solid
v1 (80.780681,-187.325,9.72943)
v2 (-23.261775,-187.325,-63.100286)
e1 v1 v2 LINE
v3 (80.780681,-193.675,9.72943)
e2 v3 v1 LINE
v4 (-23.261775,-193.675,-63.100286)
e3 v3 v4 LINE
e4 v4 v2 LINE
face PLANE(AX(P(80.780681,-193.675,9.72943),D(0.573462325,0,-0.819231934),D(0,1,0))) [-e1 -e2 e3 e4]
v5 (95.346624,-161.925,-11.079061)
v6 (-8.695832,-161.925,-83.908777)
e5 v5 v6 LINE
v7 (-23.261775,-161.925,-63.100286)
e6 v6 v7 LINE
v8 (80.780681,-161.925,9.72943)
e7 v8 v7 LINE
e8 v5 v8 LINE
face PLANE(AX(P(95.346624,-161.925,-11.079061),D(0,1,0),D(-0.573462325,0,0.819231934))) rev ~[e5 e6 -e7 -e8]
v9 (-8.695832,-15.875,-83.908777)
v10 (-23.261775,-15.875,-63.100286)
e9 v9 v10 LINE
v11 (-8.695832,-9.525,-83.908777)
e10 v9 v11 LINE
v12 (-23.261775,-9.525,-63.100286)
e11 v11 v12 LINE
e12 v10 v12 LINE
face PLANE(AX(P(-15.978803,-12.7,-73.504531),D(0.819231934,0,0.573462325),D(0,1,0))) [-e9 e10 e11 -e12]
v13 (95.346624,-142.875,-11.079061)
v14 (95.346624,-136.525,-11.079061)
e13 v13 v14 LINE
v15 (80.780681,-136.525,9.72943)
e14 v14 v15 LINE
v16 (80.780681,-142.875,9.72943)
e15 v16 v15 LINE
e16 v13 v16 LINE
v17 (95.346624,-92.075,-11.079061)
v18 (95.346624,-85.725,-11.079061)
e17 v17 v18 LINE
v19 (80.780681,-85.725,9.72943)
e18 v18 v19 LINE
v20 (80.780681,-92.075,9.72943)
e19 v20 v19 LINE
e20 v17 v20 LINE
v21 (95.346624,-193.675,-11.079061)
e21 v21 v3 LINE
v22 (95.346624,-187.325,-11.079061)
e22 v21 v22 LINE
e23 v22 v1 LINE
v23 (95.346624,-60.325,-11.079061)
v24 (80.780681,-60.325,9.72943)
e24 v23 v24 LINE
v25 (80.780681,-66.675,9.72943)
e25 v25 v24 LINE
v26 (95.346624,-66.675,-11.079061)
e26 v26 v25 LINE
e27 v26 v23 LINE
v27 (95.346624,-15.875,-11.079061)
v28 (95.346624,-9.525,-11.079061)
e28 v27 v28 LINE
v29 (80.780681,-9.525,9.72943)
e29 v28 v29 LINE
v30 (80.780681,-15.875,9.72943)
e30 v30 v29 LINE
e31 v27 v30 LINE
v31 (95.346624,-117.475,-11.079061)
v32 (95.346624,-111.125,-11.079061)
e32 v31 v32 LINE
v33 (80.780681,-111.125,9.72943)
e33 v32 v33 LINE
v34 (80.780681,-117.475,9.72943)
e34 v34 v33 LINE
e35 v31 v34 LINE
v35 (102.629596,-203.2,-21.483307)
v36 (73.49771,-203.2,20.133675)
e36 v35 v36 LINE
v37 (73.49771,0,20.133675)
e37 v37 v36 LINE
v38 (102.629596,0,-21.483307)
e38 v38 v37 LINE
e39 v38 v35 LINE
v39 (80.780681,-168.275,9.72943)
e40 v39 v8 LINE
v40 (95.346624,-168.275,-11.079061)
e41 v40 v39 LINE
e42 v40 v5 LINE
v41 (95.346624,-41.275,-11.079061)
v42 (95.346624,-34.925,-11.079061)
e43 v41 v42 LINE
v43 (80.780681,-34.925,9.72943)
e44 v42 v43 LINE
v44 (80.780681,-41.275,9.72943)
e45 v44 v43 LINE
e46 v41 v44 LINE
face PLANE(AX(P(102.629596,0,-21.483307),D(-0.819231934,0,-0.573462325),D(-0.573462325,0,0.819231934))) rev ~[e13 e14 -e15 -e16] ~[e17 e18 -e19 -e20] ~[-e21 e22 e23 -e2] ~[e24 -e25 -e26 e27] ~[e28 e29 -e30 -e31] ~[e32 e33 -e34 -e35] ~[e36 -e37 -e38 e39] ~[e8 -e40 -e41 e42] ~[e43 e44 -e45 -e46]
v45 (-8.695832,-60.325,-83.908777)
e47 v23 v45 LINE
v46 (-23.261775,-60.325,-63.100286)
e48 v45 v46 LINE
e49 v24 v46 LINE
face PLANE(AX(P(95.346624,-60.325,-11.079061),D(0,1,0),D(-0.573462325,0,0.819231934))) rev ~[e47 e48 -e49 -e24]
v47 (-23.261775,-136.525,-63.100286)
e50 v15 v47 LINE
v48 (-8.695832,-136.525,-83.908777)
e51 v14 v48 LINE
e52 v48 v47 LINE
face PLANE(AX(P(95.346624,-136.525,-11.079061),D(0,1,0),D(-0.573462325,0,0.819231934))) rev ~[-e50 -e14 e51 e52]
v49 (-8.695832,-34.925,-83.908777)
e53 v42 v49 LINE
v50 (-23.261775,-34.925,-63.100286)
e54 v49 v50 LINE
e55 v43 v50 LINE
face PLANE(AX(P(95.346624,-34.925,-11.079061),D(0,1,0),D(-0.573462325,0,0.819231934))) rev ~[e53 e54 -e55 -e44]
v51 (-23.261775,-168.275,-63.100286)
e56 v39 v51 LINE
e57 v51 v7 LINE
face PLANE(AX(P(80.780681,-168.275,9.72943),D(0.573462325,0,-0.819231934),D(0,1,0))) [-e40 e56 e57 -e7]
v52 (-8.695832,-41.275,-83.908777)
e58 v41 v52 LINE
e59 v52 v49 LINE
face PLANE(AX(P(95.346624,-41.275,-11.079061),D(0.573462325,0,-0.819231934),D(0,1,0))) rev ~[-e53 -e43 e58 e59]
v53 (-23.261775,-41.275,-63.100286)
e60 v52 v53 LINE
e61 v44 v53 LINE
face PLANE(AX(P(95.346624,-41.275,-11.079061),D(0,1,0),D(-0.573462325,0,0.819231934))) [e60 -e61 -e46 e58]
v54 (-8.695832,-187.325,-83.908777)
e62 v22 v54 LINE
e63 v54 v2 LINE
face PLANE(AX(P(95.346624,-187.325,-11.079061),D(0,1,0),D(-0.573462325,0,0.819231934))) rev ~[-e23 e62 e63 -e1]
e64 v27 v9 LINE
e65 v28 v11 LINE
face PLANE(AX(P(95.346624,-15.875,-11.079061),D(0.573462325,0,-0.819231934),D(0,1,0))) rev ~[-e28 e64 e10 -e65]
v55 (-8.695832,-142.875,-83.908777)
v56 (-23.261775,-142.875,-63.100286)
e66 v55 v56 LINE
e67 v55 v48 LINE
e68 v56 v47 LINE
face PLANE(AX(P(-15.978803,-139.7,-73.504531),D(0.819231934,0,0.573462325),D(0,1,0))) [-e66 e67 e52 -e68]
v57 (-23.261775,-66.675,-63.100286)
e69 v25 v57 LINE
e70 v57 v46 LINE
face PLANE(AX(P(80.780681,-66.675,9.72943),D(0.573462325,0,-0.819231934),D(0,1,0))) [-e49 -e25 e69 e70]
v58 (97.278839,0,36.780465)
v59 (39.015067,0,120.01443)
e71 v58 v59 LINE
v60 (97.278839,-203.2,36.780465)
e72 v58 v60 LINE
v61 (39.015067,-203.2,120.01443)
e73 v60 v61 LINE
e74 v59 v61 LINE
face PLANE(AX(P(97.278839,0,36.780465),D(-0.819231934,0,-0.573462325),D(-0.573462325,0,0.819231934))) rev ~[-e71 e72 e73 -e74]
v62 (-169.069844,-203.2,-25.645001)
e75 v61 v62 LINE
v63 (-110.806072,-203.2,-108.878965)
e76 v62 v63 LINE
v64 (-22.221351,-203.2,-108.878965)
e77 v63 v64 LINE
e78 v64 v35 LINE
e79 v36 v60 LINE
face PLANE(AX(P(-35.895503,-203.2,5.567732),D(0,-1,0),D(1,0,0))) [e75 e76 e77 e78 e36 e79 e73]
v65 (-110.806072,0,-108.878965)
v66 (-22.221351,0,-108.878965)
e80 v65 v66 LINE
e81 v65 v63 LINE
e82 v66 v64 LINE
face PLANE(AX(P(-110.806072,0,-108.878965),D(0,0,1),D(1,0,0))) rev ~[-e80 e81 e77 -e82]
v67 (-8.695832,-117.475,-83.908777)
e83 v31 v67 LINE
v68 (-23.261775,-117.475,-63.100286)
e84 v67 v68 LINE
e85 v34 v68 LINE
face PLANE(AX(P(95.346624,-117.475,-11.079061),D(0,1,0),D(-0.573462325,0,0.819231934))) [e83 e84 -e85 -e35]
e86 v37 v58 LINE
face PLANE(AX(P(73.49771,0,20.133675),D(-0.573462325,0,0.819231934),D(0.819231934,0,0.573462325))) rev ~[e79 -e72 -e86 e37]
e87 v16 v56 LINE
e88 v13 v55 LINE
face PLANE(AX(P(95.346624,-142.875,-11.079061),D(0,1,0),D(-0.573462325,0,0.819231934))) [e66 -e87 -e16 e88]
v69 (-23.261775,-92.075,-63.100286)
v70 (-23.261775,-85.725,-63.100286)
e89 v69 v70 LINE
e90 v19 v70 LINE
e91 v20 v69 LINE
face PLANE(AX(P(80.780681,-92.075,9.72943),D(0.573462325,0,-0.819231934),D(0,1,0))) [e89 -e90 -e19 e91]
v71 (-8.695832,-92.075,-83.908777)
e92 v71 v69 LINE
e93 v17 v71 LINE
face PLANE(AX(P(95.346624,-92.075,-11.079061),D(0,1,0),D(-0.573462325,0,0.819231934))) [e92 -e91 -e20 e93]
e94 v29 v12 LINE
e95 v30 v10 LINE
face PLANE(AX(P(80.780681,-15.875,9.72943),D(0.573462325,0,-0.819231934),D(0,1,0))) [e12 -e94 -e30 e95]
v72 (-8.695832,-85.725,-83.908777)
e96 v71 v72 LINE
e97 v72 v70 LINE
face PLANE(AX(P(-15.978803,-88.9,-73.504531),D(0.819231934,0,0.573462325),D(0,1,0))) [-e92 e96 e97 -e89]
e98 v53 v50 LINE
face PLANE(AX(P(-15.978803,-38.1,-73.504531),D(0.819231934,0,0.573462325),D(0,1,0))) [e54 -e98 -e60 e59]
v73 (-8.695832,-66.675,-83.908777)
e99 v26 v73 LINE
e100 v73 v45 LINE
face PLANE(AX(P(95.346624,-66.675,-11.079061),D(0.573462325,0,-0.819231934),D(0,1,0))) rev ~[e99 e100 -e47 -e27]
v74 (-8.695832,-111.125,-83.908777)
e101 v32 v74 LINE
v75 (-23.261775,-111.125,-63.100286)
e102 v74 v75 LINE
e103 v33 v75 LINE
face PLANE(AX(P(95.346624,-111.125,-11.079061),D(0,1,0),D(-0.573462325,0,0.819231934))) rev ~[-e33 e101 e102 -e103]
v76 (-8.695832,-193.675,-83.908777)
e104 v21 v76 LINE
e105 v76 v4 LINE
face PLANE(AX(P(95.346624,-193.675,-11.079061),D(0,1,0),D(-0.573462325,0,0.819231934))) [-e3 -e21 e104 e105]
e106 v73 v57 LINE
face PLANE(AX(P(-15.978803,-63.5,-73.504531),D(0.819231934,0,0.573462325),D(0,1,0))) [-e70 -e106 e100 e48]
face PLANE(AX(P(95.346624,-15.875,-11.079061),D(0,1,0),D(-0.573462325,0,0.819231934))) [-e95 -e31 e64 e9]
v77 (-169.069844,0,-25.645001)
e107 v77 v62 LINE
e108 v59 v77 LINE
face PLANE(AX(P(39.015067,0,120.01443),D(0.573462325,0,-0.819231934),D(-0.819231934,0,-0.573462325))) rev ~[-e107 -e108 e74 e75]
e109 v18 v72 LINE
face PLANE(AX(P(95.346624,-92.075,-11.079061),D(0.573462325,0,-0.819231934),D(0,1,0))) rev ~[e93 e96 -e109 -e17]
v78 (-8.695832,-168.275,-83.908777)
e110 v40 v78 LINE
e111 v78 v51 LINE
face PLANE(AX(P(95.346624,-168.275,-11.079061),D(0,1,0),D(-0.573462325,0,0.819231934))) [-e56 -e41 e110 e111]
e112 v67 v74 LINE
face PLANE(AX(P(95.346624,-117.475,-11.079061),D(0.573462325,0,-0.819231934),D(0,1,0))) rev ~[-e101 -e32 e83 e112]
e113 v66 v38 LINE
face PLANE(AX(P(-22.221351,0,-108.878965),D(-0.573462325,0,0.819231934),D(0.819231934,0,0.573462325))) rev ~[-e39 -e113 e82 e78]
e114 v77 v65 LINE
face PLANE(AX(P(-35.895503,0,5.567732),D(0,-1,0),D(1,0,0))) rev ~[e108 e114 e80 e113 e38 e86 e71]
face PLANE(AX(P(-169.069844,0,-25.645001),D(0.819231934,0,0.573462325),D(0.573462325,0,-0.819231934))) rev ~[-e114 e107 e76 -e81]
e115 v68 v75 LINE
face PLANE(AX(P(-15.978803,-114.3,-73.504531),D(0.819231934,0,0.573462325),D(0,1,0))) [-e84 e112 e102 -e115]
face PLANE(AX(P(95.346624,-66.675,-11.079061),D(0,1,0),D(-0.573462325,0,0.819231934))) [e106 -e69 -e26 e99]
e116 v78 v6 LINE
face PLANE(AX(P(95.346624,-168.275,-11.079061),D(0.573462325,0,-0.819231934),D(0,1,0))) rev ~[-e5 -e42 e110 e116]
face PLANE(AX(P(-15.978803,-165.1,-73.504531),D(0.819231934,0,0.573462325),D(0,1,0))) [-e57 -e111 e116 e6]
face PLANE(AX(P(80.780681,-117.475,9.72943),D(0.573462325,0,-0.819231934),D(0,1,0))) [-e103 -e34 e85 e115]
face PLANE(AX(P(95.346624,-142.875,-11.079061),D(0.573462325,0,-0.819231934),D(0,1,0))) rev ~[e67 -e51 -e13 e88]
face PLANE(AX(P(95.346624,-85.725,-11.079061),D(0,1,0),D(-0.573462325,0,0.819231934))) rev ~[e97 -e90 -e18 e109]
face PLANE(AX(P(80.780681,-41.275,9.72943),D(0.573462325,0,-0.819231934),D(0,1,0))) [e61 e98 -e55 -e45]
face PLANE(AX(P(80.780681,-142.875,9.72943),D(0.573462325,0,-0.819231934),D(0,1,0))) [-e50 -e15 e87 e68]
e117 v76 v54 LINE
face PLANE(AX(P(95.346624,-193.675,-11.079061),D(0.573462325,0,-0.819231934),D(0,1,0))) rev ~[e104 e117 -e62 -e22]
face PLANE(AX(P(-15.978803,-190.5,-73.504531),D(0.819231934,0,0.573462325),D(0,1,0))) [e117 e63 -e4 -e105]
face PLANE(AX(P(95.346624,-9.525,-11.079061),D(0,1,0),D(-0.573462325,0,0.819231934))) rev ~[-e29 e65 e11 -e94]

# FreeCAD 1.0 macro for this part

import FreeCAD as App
import Part
import Sketcher
Q = App.Units.Quantity


def add_polygon(sketch, points):
    """Adds a closed chain of lines whose ends are joined by coincident constraints."""
    first, n = sketch.GeometryCount, len(points)
    for a, b in zip(points, points[1:] + points[:1]):
        sketch.addGeometry(Part.LineSegment(App.Vector(*a, 0), App.Vector(*b, 0)), False)
    for i in range(n):
        sketch.addConstraint(Sketcher.Constraint("Coincident", first + i, 2, first + (i + 1) % n, 1))

doc = App.newDocument("Part")
params = doc.addObject("Spreadsheet::Sheet", "Params")
for row, (alias, value) in enumerate([
    ("sketch1_length", "10 in"),
    ("sketch1_length2", "4 in"),
    ("sketch1_length3", "6 in"),
    ("sketch1_length4", "2 in"),
    ("pad1_length", "8 in"),
    ("sketch2_height", "1 in"),
    ("sketch2_width", "0.25 in"),
    ("pocket1_length", "5 in"),
], start=1):
    params.set(f"A{row}", alias)
    params.set(f"B{row}", "=" + value)
    params.setAlias(f"B{row}", alias)

body = doc.addObject("PartDesign::Body", "Body")

# Sketch on XZ plane
sketch1 = doc.addObject("Sketcher::SketchObject", "Sketch")
body.addObject(sketch1)
sketch1.AttachmentSupport = (doc.XZ_Plane, [""])
sketch1.MapMode = "FlatFace"
add_polygon(sketch1, [(39, 120), (-169, -26), (-111, -109), (-22, -109), (103, -21), (73, 20), (97, 37)])  # lines 0-6
sketch1.addConstraint([
    Sketcher.Constraint("Horizontal", 2),
    Sketcher.Constraint("Perpendicular", 0, 1),
    Sketcher.Constraint("Perpendicular", 1, 3),
    Sketcher.Constraint("Perpendicular", 3, 4),
    Sketcher.Constraint("Perpendicular", 4, 5),
    Sketcher.Constraint("Perpendicular", 5, 6),
    Sketcher.Constraint("Equal", 1, 6),
    Sketcher.Constraint("Distance", 0, Q("10 in")),
    Sketcher.Constraint("Distance", 1, Q("4 in")),
    Sketcher.Constraint("Distance", 3, Q("6 in")),
    Sketcher.Constraint("Distance", 4, Q("2 in")),
    Sketcher.Constraint("DistanceX", 2, 1, 2, 2, 88.584721),
    Sketcher.Constraint("DistanceY", 0, 2, -1, 1, 25.645001),
    Sketcher.Constraint("DistanceX", 2, 2, -1, 1, 22.221351),
])
sketch1.setExpression("Constraints[14]", "Params.sketch1_length")
sketch1.setExpression("Constraints[15]", "Params.sketch1_length2")
sketch1.setExpression("Constraints[16]", "Params.sketch1_length3")
sketch1.setExpression("Constraints[17]", "Params.sketch1_length4")
pad1 = doc.addObject("PartDesign::Pad", "Pad")
body.addObject(pad1)
pad1.Profile = sketch1
pad1.setExpression("Length", "Params.pad1_length")

# Sketch on an angled plane
sketch2 = doc.addObject("Sketcher::SketchObject", "Sketch001")
body.addObject(sketch2)
sketch2.Placement = App.Placement(App.Vector(58.786097, 0, 41.150266), App.Rotation(App.Vector(0, 1, 0), App.Vector(-0.573462325, 0, 0.819231934), App.Vector(0.819231934, 0, 0.573462325), "ZXY"))
add_polygon(sketch2, [(-194, -38), (-194, -64), (-187, -64), (-187, -38)])  # lines 0-3
add_polygon(sketch2, [(-168, -38), (-168, -64), (-162, -64), (-162, -38)])  # lines 4-7
add_polygon(sketch2, [(-143, -38), (-143, -64), (-137, -64), (-137, -38)])  # lines 8-11
add_polygon(sketch2, [(-117, -38), (-117, -64), (-111, -64), (-111, -38)])  # lines 12-15
add_polygon(sketch2, [(-92, -38), (-92, -64), (-86, -64), (-86, -38)])  # lines 16-19
add_polygon(sketch2, [(-67, -38), (-67, -64), (-60, -64), (-60, -38)])  # lines 20-23
add_polygon(sketch2, [(-41, -38), (-41, -64), (-35, -64), (-35, -38)])  # lines 24-27
add_polygon(sketch2, [(-16, -38), (-16, -64), (-10, -64), (-10, -38)])  # lines 28-31
sketch2.addConstraint([
    Sketcher.Constraint("Vertical", 0),
    Sketcher.Constraint("Horizontal", 1),
    Sketcher.Constraint("Vertical", 2),
    Sketcher.Constraint("Horizontal", 3),
    Sketcher.Constraint("Vertical", 4),
    Sketcher.Constraint("Horizontal", 5),
    Sketcher.Constraint("Vertical", 6),
    Sketcher.Constraint("Horizontal", 7),
    Sketcher.Constraint("Vertical", 8),
    Sketcher.Constraint("Horizontal", 9),
    Sketcher.Constraint("Vertical", 10),
    Sketcher.Constraint("Horizontal", 11),
    Sketcher.Constraint("Vertical", 12),
    Sketcher.Constraint("Horizontal", 13),
    Sketcher.Constraint("Vertical", 14),
    Sketcher.Constraint("Horizontal", 15),
    Sketcher.Constraint("Vertical", 16),
    Sketcher.Constraint("Horizontal", 17),
    Sketcher.Constraint("Vertical", 18),
    Sketcher.Constraint("Horizontal", 19),
    Sketcher.Constraint("Vertical", 20),
    Sketcher.Constraint("Horizontal", 21),
    Sketcher.Constraint("Vertical", 22),
    Sketcher.Constraint("Horizontal", 23),
    Sketcher.Constraint("Vertical", 24),
    Sketcher.Constraint("Horizontal", 25),
    Sketcher.Constraint("Vertical", 26),
    Sketcher.Constraint("Horizontal", 27),
    Sketcher.Constraint("Vertical", 28),
    Sketcher.Constraint("Horizontal", 29),
    Sketcher.Constraint("Vertical", 30),
    Sketcher.Constraint("Horizontal", 31),
    Sketcher.Constraint("Horizontal", 1, 2, 4, 2),
    Sketcher.Constraint("Horizontal", 3, 2, 6, 2),
    Sketcher.Constraint("Horizontal", 5, 2, 8, 2),
    Sketcher.Constraint("Horizontal", 7, 2, 10, 2),
    Sketcher.Constraint("Horizontal", 9, 2, 12, 2),
    Sketcher.Constraint("Horizontal", 11, 2, 14, 2),
    Sketcher.Constraint("Horizontal", 13, 2, 16, 2),
    Sketcher.Constraint("Horizontal", 15, 2, 18, 2),
    Sketcher.Constraint("Horizontal", 17, 2, 20, 2),
    Sketcher.Constraint("Horizontal", 19, 2, 22, 2),
    Sketcher.Constraint("Horizontal", 21, 2, 24, 2),
    Sketcher.Constraint("Horizontal", 23, 2, 26, 2),
    Sketcher.Constraint("Horizontal", 25, 2, 28, 2),
    Sketcher.Constraint("Horizontal", 27, 2, 30, 2),
    Sketcher.Constraint("Equal", 3, 5),
    Sketcher.Constraint("Equal", 7, 9),
    Sketcher.Constraint("Equal", 11, 13),
    Sketcher.Constraint("Equal", 15, 17),
    Sketcher.Constraint("Equal", 19, 21),
    Sketcher.Constraint("Equal", 23, 25),
    Sketcher.Constraint("Equal", 27, 29),
    Sketcher.Constraint("DistanceY", 0, 2, 0, 1, Q("1 in")),
    Sketcher.Constraint("DistanceX", 0, 2, 4, 2, Q("1 in")),
    Sketcher.Constraint("DistanceX", 4, 2, 8, 2, Q("1 in")),
    Sketcher.Constraint("DistanceX", 8, 2, 12, 2, Q("1 in")),
    Sketcher.Constraint("DistanceX", 12, 2, 16, 2, Q("1 in")),
    Sketcher.Constraint("DistanceX", 16, 2, 20, 2, Q("1 in")),
    Sketcher.Constraint("DistanceX", 20, 2, 24, 2, Q("1 in")),
    Sketcher.Constraint("DistanceX", 24, 2, 28, 2, Q("1 in")),
    Sketcher.Constraint("DistanceX", 1, 1, 1, 2, Q("0.25 in")),
    Sketcher.Constraint("DistanceX", 0, 2, -1, 1, Q("7.625 in")),
    Sketcher.Constraint("DistanceY", 0, 2, -1, 1, 63.754018),
])
sketch2.setExpression("Constraints[85]", "Params.sketch2_height")
sketch2.setExpression("Constraints[93]", "Params.sketch2_width")
pocket1 = doc.addObject("PartDesign::Pocket", "Pocket")
body.addObject(pocket1)
pocket1.Profile = sketch2
pocket1.setExpression("Length", "Params.pocket1_length")

doc.recompute()
